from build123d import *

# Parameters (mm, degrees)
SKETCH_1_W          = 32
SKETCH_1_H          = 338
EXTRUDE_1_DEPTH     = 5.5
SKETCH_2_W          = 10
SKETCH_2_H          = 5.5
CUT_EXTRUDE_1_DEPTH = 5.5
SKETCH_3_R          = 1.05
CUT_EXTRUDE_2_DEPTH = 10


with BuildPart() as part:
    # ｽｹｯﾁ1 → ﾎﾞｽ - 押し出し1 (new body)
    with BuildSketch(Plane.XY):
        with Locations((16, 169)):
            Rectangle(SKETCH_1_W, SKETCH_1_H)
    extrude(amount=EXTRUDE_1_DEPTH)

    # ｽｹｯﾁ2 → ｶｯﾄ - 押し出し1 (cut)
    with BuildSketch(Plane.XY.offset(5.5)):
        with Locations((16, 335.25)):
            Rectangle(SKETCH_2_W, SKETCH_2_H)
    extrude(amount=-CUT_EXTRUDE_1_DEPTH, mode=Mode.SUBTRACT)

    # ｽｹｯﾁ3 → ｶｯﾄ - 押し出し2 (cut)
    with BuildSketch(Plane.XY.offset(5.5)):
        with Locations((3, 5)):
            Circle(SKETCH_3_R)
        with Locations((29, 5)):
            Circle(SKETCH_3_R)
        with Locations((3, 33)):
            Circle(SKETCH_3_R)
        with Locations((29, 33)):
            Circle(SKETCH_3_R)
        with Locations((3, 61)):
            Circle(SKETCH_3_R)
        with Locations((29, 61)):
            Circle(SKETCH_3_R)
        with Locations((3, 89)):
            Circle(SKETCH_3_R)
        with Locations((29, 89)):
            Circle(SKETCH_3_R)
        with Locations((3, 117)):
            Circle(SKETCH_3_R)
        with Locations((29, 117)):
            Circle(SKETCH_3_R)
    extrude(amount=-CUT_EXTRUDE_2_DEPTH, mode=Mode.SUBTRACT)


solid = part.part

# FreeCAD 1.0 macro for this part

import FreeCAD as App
import Part
import Sketcher
Q = App.Units.Quantity

doc = App.newDocument("Part")
body = doc.addObject("PartDesign::Body", "Body")

# Sketch on XY plane
sketch1 = body.newObject("Sketcher::SketchObject", "Sketch")
sketch1.AttachmentSupport = (doc.getObject("XY_Plane"), [""])
sketch1.MapMode = "FlatFace"
sketch1.addGeometry([
    Part.LineSegment(App.Vector(0, 338, 0), App.Vector(0, 0, 0)),
    Part.LineSegment(App.Vector(0, 0, 0), App.Vector(32, 0, 0)),
    Part.LineSegment(App.Vector(32, 0, 0), App.Vector(32, 338, 0)),
    Part.LineSegment(App.Vector(32, 338, 0), App.Vector(0, 338, 0)),
], False)
sketch1.addConstraint([
    Sketcher.Constraint("Coincident", 0, 2, 1, 1),
    Sketcher.Constraint("Coincident", 1, 2, 2, 1),
    Sketcher.Constraint("Coincident", 2, 2, 3, 1),
    Sketcher.Constraint("Coincident", 3, 2, 0, 1),
    Sketcher.Constraint("Vertical", 0),
    Sketcher.Constraint("Horizontal", 1),
    Sketcher.Constraint("Vertical", 2),
    Sketcher.Constraint("Horizontal", 3),
    Sketcher.Constraint("Coincident", 0, 2, -1, 1),
    Sketcher.Constraint("DistanceX", 1, 1, 1, 2, Q("32 mm")),
    Sketcher.Constraint("DistanceY", 0, 2, 0, 1, Q("338 mm")),
])
pad1 = body.newObject("PartDesign::Pad", "Pad")
pad1.Profile = sketch1
pad1.Length = 5.5

# Sketch on XY plane
sketch2 = body.newObject("Sketcher::SketchObject", "Sketch001")
sketch2.AttachmentSupport = (doc.getObject("XY_Plane"), [""])
sketch2.MapMode = "FlatFace"
sketch2.AttachmentOffset = App.Placement(App.Vector(0, 0, 5.5), App.Rotation())
sketch2.addGeometry([
    Part.LineSegment(App.Vector(11, 338, 0), App.Vector(11, 332, 0)),
    Part.LineSegment(App.Vector(11, 332, 0), App.Vector(21, 332, 0)),
    Part.LineSegment(App.Vector(21, 332, 0), App.Vector(21, 338, 0)),
    Part.LineSegment(App.Vector(21, 338, 0), App.Vector(11, 338, 0)),
], False)
sketch2.addConstraint([
    Sketcher.Constraint("Coincident", 0, 2, 1, 1),
    Sketcher.Constraint("Coincident", 1, 2, 2, 1),
    Sketcher.Constraint("Coincident", 2, 2, 3, 1),
    Sketcher.Constraint("Coincident", 3, 2, 0, 1),
    Sketcher.Constraint("Vertical", 0),
    Sketcher.Constraint("Horizontal", 1),
    Sketcher.Constraint("Vertical", 2),
    Sketcher.Constraint("Horizontal", 3),
    Sketcher.Constraint("DistanceX", 1, 1, 1, 2, Q("10 mm")),
    Sketcher.Constraint("DistanceY", 0, 2, 0, 1, Q("5.5 mm")),
    Sketcher.Constraint("DistanceX", -1, 1, 0, 2, Q("11 mm")),
    Sketcher.Constraint("DistanceY", -1, 1, 2, 2, Q("338 mm")),
])
pocket1 = body.newObject("PartDesign::Pocket", "Pocket")
pocket1.Profile = sketch2
pocket1.Length = 5.5

# Sketch on XY plane
sketch3 = body.newObject("Sketcher::SketchObject", "Sketch002")
sketch3.AttachmentSupport = (doc.getObject("XY_Plane"), [""])
sketch3.MapMode = "FlatFace"
sketch3.AttachmentOffset = App.Placement(App.Vector(0, 0, 5.5), App.Rotation())
sketch3.addGeometry([
    Part.Circle(App.Vector(3, 5, 0), App.Vector(0, 0, 1), 1.1),  # 0
    Part.Circle(App.Vector(29, 5, 0), App.Vector(0, 0, 1), 1.1),  # 1
    Part.Circle(App.Vector(3, 33, 0), App.Vector(0, 0, 1), 1.1),  # 2
    Part.Circle(App.Vector(29, 33, 0), App.Vector(0, 0, 1), 1.1),  # 3
    Part.Circle(App.Vector(3, 61, 0), App.Vector(0, 0, 1), 1.1),  # 4
    Part.Circle(App.Vector(29, 61, 0), App.Vector(0, 0, 1), 1.1),  # 5
    Part.Circle(App.Vector(3, 89, 0), App.Vector(0, 0, 1), 1.1),  # 6
    Part.Circle(App.Vector(29, 89, 0), App.Vector(0, 0, 1), 1.1),  # 7
    Part.Circle(App.Vector(3, 117, 0), App.Vector(0, 0, 1), 1.1),  # 8
    Part.Circle(App.Vector(29, 117, 0), App.Vector(0, 0, 1), 1.1),  # 9
], False)
sketch3.addConstraint([
    Sketcher.Constraint("Equal", 0, 1),
    Sketcher.Constraint("Equal", 1, 2),
    Sketcher.Constraint("Equal", 2, 3),
    Sketcher.Constraint("Equal", 3, 4),
    Sketcher.Constraint("Equal", 4, 5),
    Sketcher.Constraint("Equal", 5, 6),
    Sketcher.Constraint("Equal", 6, 7),
    Sketcher.Constraint("Equal", 7, 8),
    Sketcher.Constraint("Equal", 8, 9),
    Sketcher.Constraint("Horizontal", 0, 3, 1, 3),
    Sketcher.Constraint("Horizontal", 2, 3, 3, 3),
    Sketcher.Constraint("Horizontal", 4, 3, 5, 3),
    Sketcher.Constraint("Horizontal", 6, 3, 7, 3),
    Sketcher.Constraint("Horizontal", 8, 3, 9, 3),
    Sketcher.Constraint("Vertical", 0, 3, 2, 3),
    Sketcher.Constraint("Vertical", 1, 3, 3, 3),
    Sketcher.Constraint("Vertical", 2, 3, 4, 3),
    Sketcher.Constraint("Vertical", 3, 3, 5, 3),
    Sketcher.Constraint("Vertical", 4, 3, 6, 3),
    Sketcher.Constraint("Vertical", 5, 3, 7, 3),
    Sketcher.Constraint("Vertical", 6, 3, 8, 3),
    Sketcher.Constraint("Vertical", 7, 3, 9, 3),
    Sketcher.Constraint("Diameter", 0, Q("2.1 mm")),
    Sketcher.Constraint("DistanceX", -1, 1, 0, 3, Q("3 mm")),
    Sketcher.Constraint("DistanceY", -1, 1, 0, 3, Q("5 mm")),
    Sketcher.Constraint("DistanceX", -1, 1, 1, 3, Q("29 mm")),
    Sketcher.Constraint("DistanceY", -1, 1, 2, 3, Q("33 mm")),
    Sketcher.Constraint("DistanceY", -1, 1, 4, 3, Q("61 mm")),
    Sketcher.Constraint("DistanceY", -1, 1, 6, 3, Q("89 mm")),
    Sketcher.Constraint("DistanceY", -1, 1, 8, 3, Q("117 mm")),
])
pocket2 = body.newObject("PartDesign::Pocket", "Pocket001")
pocket2.Profile = sketch3
pocket2.Length = 10

doc.recompute()
